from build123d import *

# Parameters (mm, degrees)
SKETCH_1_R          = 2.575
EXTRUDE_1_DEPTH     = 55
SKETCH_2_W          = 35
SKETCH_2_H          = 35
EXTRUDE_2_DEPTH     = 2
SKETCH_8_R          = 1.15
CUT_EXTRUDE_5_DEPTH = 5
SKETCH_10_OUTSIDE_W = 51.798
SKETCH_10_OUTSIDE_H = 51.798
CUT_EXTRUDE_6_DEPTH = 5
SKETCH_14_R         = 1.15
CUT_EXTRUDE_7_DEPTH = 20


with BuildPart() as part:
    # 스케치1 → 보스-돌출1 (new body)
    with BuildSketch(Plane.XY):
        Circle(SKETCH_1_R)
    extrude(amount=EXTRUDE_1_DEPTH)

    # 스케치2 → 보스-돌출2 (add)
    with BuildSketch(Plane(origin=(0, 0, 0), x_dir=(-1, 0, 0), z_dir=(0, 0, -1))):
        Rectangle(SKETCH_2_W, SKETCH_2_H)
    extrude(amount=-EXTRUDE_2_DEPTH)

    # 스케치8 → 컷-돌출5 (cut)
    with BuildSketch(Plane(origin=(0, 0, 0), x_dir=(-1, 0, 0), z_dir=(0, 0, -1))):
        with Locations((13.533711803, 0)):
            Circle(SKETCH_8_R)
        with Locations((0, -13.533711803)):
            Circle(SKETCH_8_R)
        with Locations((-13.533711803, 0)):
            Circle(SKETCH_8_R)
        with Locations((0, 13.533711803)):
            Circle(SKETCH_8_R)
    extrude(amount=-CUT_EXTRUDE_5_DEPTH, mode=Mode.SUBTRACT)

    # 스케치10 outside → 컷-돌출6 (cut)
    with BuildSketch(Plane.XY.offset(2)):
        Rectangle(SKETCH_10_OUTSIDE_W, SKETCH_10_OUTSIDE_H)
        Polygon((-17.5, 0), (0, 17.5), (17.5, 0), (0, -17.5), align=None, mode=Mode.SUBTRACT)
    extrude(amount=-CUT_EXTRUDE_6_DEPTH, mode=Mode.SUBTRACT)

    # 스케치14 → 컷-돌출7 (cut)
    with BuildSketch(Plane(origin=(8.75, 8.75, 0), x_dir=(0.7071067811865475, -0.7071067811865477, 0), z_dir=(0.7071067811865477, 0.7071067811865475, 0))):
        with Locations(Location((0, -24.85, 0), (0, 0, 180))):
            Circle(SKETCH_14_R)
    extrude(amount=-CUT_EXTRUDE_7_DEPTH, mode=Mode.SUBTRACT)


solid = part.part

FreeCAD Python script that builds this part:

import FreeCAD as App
import Part
import Sketcher
Q = App.Units.Quantity


def add_polygon(sketch, points):
    """Adds a closed chain of lines whose ends are joined by coincident constraints."""
    first, n = sketch.GeometryCount, len(points)
    for a, b in zip(points, points[1:] + points[:1]):
        sketch.addGeometry(Part.LineSegment(App.Vector(*a, 0), App.Vector(*b, 0)), False)
    for i in range(n):
        sketch.addConstraint(Sketcher.Constraint("Coincident", first + i, 2, first + (i + 1) % n, 1))

doc = App.newDocument("Part")
body = doc.addObject("PartDesign::Body", "Body")

sketch1 = body.newObject("Sketcher::SketchObject", "Sketch")
sketch1.AttachmentSupport = (doc.getObject("XY_Plane"), [""])
sketch1.MapMode = "FlatFace"
sketch1.addGeometry(Part.Circle(App.Vector(0, 0, 0), App.Vector(0, 0, 1), 2.575), False)
sketch1.addConstraint([
    Sketcher.Constraint("Coincident", 0, 3, -1, 1),
    Sketcher.Constraint("Diameter", 0, Q("5.15 mm")),
])
pad1 = body.newObject("PartDesign::Pad", "Pad")
pad1.Profile = sketch1
pad1.Length = 55

sketch2 = body.newObject("Sketcher::SketchObject", "Sketch001")
sketch2.AttachmentSupport = (doc.getObject("XY_Plane"), [""])
sketch2.MapMode = "FlatFace"
add_polygon(sketch2, [(17.5, 17.5), (17.5, -17.5), (-17.5, -17.5), (-17.5, 17.5)])
sketch2.addConstraint([
    Sketcher.Constraint("Vertical", 0),
    Sketcher.Constraint("Horizontal", 1),
    Sketcher.Constraint("Vertical", 2),
    Sketcher.Constraint("Horizontal", 3),
    Sketcher.Constraint("Symmetric", 0, 2, 2, 2, -1, 1),
    Sketcher.Constraint("Equal", 3, 0),
    Sketcher.Constraint("DistanceX", 1, 2, 1, 1, Q("35 mm")),
])
pad2 = body.newObject("PartDesign::Pad", "Pad001")
pad2.Profile = sketch2
pad2.Length = 2

sketch3 = body.newObject("Sketcher::SketchObject", "Sketch002")
sketch3.AttachmentSupport = (doc.getObject("XY_Plane"), [""])
sketch3.MapMode = "FlatFace"
sketch3.addGeometry([
    Part.Circle(App.Vector(-13.533712, 0, 0), App.Vector(0, 0, 1), 1.15),
    Part.Circle(App.Vector(0, -13.533712, 0), App.Vector(0, 0, 1), 1.15),
    Part.Circle(App.Vector(13.533712, 0, 0), App.Vector(0, 0, 1), 1.15),
    Part.Circle(App.Vector(0, 13.533712, 0), App.Vector(0, 0, 1), 1.15),
], False)
sketch3.addConstraint([
    Sketcher.Constraint("Equal", 0, 1),
    Sketcher.Constraint("Equal", 1, 2),
    Sketcher.Constraint("Equal", 2, 3),
    Sketcher.Constraint("Symmetric", 0, 3, 2, 3, -1, 1),
    Sketcher.Constraint("Symmetric", 1, 3, 3, 3, -1, 1),
    Sketcher.Constraint("PointOnObject", 0, 3, -1),
    Sketcher.Constraint("PointOnObject", 1, 3, -2),
    Sketcher.Constraint("Diameter", 0, Q("2.3 mm")),
    Sketcher.Constraint("DistanceX", 0, 3, -1, 1, Q("13.533712 mm")),
    Sketcher.Constraint("DistanceY", 1, 3, -1, 1, Q("13.533712 mm")),
])
pocket1 = body.newObject("PartDesign::Pocket", "Pocket")
pocket1.Profile = sketch3
pocket1.Length = 5
pocket1.Reversed = True

sketch4 = body.newObject("Sketcher::SketchObject", "Sketch003")
sketch4.AttachmentSupport = (doc.getObject("XY_Plane"), [""])
sketch4.MapMode = "FlatFace"
sketch4.AttachmentOffset = App.Placement(App.Vector(0, 0, 2), App.Rotation())
add_polygon(sketch4, [(-25.899, 25.899), (-25.899, -25.899), (25.899, -25.899), (25.899, 25.899)])
add_polygon(sketch4, [(0, -17.5), (-17.5, 0), (0, 17.5), (17.5, 0)])
sketch4.addConstraint([
    Sketcher.Constraint("Vertical", 0),
    Sketcher.Constraint("Horizontal", 1),
    Sketcher.Constraint("Vertical", 2),
    Sketcher.Constraint("Horizontal", 3),
    Sketcher.Constraint("Symmetric", 0, 2, 2, 2, -1, 1),
    Sketcher.Constraint("Symmetric", 4, 2, 6, 2, -1, 1),
    Sketcher.Constraint("Symmetric", 5, 2, 7, 2, -1, 1),
    Sketcher.Constraint("PointOnObject", 4, 2, -1),
    Sketcher.Constraint("PointOnObject", 5, 2, -2),
    Sketcher.Constraint("Perpendicular", 4, 5),
    Sketcher.Constraint("Equal", 3, 0),
    Sketcher.Constraint("DistanceX", 4, 2, 6, 2, Q("35 mm")),
    Sketcher.Constraint("DistanceX", 1, 1, 1, 2, Q("51.798 mm")),
])
pocket2 = body.newObject("PartDesign::Pocket", "Pocket001")
pocket2.Profile = sketch4
pocket2.Length = 5

sketch5 = body.newObject("Sketcher::SketchObject", "Sketch004")
sketch5.Placement = App.Placement(App.Vector(8.75, 8.75, 0), App.Rotation(App.Vector(0.707106781, -0.707106781, 0), App.Vector(0, 0, -0.999999999), App.Vector(0.707106781, 0.707106781, 0), "ZXY"))
sketch5.addGeometry(Part.Circle(App.Vector(0, -24.85, 0), App.Vector(0, 0, 1), 1.15), False)
sketch5.addConstraint([
    Sketcher.Constraint("PointOnObject", 0, 3, -2),
    Sketcher.Constraint("Diameter", 0, Q("2.3 mm")),
    Sketcher.Constraint("DistanceY", 0, 3, -1, 1, Q("24.85 mm")),
])
pocket3 = body.newObject("PartDesign::Pocket", "Pocket002")
pocket3.Profile = sketch5
pocket3.Length = 20

doc.recompute()
